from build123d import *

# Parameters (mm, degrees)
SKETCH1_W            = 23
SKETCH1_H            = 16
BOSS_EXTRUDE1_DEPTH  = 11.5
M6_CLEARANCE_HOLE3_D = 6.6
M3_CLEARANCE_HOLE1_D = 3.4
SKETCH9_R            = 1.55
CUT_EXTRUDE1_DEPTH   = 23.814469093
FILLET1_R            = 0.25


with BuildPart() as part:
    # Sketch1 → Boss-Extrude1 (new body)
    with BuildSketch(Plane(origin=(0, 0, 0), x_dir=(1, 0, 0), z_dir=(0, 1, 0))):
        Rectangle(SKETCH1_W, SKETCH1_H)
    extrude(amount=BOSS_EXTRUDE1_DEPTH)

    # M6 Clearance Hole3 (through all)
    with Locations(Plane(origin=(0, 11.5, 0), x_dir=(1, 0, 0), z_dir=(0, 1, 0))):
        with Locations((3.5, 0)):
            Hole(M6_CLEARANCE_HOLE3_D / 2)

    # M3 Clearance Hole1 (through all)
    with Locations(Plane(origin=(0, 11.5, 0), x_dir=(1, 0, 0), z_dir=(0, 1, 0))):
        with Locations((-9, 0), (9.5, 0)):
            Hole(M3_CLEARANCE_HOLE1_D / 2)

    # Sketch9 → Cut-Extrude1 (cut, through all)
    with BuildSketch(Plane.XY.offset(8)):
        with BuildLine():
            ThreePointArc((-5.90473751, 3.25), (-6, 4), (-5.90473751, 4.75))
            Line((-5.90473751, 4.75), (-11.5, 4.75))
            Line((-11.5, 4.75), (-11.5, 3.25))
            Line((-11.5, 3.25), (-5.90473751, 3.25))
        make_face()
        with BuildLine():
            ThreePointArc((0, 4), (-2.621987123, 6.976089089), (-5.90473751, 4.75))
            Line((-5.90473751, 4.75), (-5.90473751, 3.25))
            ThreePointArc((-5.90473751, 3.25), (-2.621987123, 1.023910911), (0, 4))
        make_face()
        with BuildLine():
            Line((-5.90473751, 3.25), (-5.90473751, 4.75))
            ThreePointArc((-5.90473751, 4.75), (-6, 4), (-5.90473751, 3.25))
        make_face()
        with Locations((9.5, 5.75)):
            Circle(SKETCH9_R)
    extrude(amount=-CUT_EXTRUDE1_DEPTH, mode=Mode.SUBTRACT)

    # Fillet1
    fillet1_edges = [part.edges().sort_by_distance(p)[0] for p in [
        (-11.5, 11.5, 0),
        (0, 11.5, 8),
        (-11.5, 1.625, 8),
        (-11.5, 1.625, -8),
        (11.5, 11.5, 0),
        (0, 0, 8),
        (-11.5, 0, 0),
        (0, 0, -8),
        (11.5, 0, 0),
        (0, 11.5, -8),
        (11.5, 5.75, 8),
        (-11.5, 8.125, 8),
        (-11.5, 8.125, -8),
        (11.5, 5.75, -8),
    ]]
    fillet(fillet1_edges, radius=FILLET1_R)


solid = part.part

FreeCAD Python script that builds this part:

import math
import FreeCAD as App
import Part
import Sketcher


def edges_at(feature, points):
    """Names of the edges that pass closest to the given points."""
    edges = feature.Shape.Edges
    near = lambda p: min(range(len(edges)), key=lambda i: edges[i].distToShape(Part.Vertex(*p))[0])
    return sorted({f"Edge{near(p) + 1}" for p in points})


def add_polygon(sketch, points):
    """Adds a closed chain of lines whose ends are joined by coincident constraints."""
    first, n = sketch.GeometryCount, len(points)
    for a, b in zip(points, points[1:] + points[:1]):
        sketch.addGeometry(Part.LineSegment(App.Vector(*a, 0), App.Vector(*b, 0)), False)
    for i in range(n):
        sketch.addConstraint(Sketcher.Constraint("Coincident", first + i, 2, first + (i + 1) % n, 1))

doc = App.newDocument("Part")
body = doc.addObject("PartDesign::Body", "Body")

# Sketch on XZ plane
sketch1 = body.newObject("Sketcher::SketchObject", "Sketch")
sketch1.AttachmentSupport = (doc.getObject("XZ_Plane"), [""])
sketch1.MapMode = "FlatFace"
add_polygon(sketch1, [(-12, -8), (-12, 8), (12, 8), (12, -8)])  # lines 0-3
sketch1.addConstraint([
    Sketcher.Constraint("Vertical", 0),
    Sketcher.Constraint("Horizontal", 1),
    Sketcher.Constraint("Vertical", 2),
    Sketcher.Constraint("Horizontal", 3),
    Sketcher.Constraint("Symmetric", 0, 2, 2, 2, -1, 1),
    Sketcher.Constraint("DistanceX", 1, 1, 1, 2, 23.0),
    Sketcher.Constraint("DistanceY", 0, 1, 0, 2, 16.0),
])
pad1 = body.newObject("PartDesign::Pad", "Pad")
pad1.Profile = sketch1
pad1.Length = 11.5
pad1.Reversed = True

# Sketch on XZ plane
sketch2 = body.newObject("Sketcher::SketchObject", "Sketch001")
sketch2.AttachmentSupport = (doc.getObject("XZ_Plane"), [""])
sketch2.MapMode = "FlatFace"
sketch2.AttachmentOffset = App.Placement(App.Vector(0, 0, -11.5), App.Rotation())
sketch2.addGeometry(Part.Circle(App.Vector(3.5, 0, 0), App.Vector(0, 0, 1), 3.3), False)
sketch2.addConstraint([
    Sketcher.Constraint("PointOnObject", 0, 3, -1),
    Sketcher.Constraint("Diameter", 0, 6.6),
    Sketcher.Constraint("DistanceX", -1, 1, 0, 3, 3.5),
])
doc.recompute()
hole = body.newObject("PartDesign::Hole", "Hole")
hole.Profile = sketch2
hole.ThreadType = "None"
hole.Diameter = 6.6
hole.DepthType = "ThroughAll"
hole.Reversed = True

# Sketch on XZ plane
sketch3 = body.newObject("Sketcher::SketchObject", "Sketch002")
sketch3.AttachmentSupport = (doc.getObject("XZ_Plane"), [""])
sketch3.MapMode = "FlatFace"
sketch3.AttachmentOffset = App.Placement(App.Vector(0, 0, -11.5), App.Rotation())
sketch3.addGeometry([
    Part.Circle(App.Vector(-9, 0, 0), App.Vector(0, 0, 1), 1.7),
    Part.Circle(App.Vector(9.5, 0, 0), App.Vector(0, 0, 1), 1.7),
], False)
sketch3.addConstraint([
    Sketcher.Constraint("Equal", 0, 1),
    Sketcher.Constraint("PointOnObject", 0, 3, -1),
    Sketcher.Constraint("PointOnObject", 1, 3, -1),
    Sketcher.Constraint("Diameter", 0, 3.4),
    Sketcher.Constraint("DistanceX", 0, 3, -1, 1, 9.0),
    Sketcher.Constraint("DistanceX", -1, 1, 1, 3, 9.5),
])
doc.recompute()
hole2 = body.newObject("PartDesign::Hole", "Hole001")
hole2.Profile = sketch3
hole2.ThreadType = "None"
hole2.Diameter = 3.4
hole2.DepthType = "ThroughAll"
hole2.Reversed = True

# Sketch on XY plane
sketch4 = body.newObject("Sketcher::SketchObject", "Sketch003")
sketch4.AttachmentSupport = (doc.getObject("XY_Plane"), [""])
sketch4.MapMode = "FlatFace"
sketch4.AttachmentOffset = App.Placement(App.Vector(0, 0, 8), App.Rotation())
sketch4.addGeometry([
    Part.LineSegment(App.Vector(-11.5, 4.8, 0), App.Vector(-11.5, 3.2, 0)),  # 0
    Part.LineSegment(App.Vector(-11.5, 3.2, 0), App.Vector(-5.9, 3.2, 0)),  # 1
    Part.ArcOfCircle(Part.Circle(App.Vector(-3, 4, 0), App.Vector(0, 0, 1), 3), math.radians(-166), math.radians(0)),  # 2
    Part.ArcOfCircle(Part.Circle(App.Vector(-3, 4, 0), App.Vector(0, 0, 1), 3), math.radians(0), math.radians(166)),  # 3
    Part.LineSegment(App.Vector(-5.9, 4.8, 0), App.Vector(-11.5, 4.8, 0)),  # 4
    Part.Circle(App.Vector(9.5, 5.8, 0), App.Vector(0, 0, 1), 1.6),  # 5
], False)
sketch4.addConstraint([
    Sketcher.Constraint("Coincident", 0, 2, 1, 1),
    Sketcher.Constraint("Coincident", 1, 2, 2, 1),
    Sketcher.Constraint("Tangent", 2, 2, 3, 1),
    Sketcher.Constraint("Coincident", 3, 2, 4, 1),
    Sketcher.Constraint("Coincident", 4, 2, 0, 1),
    Sketcher.Constraint("Vertical", 0),
    Sketcher.Constraint("Horizontal", 1),
    Sketcher.Constraint("Horizontal", 4),
    Sketcher.Constraint("Equal", 2, 3),
    Sketcher.Constraint("PointOnObject", 2, 2, -2),
    Sketcher.Constraint("Horizontal", 3, 3, 2, 2),
    Sketcher.Constraint("Vertical", 1, 2, 3, 2),
    Sketcher.Constraint("Radius", 2, 3.0),
    Sketcher.Constraint("Diameter", 5, 3.1),
    Sketcher.Constraint("DistanceY", 0, 2, 0, 1, 1.5),
    Sketcher.Constraint("DistanceY", -1, 1, 2, 3, 4.0),
    Sketcher.Constraint("DistanceX", 0, 2, 5, 3, 21.0),
    Sketcher.Constraint("DistanceX", -1, 1, 5, 3, 9.5),
    Sketcher.Constraint("DistanceY", 0, 2, 5, 3, 2.5),
])
pocket1 = body.newObject("PartDesign::Pocket", "Pocket")
pocket1.Profile = sketch4
pocket1.Type = "ThroughAll"
doc.recompute()

fillet = body.newObject("PartDesign::Fillet", "Fillet")
fillet.Base = (pocket1, edges_at(pocket1, [
    (-11.5, 11.5, 0),
    (0, 11.5, 8),
    (-11.5, 1.625, 8),
    (-11.5, 1.625, -8),
    (11.5, 11.5, 0),
    (0, 0, 8),
    (-11.5, 0, 0),
    (0, 0, -8),
    (11.5, 0, 0),
    (0, 11.5, -8),
    (11.5, 5.75, 8),
    (-11.5, 8.125, 8),
    (-11.5, 8.125, -8),
    (11.5, 5.75, -8),
]))
fillet.Radius = 0.25

doc.recompute()
